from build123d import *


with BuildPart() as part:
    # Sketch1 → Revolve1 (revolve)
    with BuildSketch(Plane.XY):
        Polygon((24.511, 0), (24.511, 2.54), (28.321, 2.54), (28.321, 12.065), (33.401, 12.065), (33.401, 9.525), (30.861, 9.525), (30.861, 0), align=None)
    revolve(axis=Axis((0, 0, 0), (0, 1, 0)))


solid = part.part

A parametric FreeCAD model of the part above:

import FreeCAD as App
import Part
import Sketcher

V = App.Vector
Q = App.Units.Quantity


def add_polygon(sketch, points):
    """Adds a closed chain of lines whose ends are joined by coincident constraints."""
    first, n = sketch.GeometryCount, len(points)
    for a, b in zip(points, points[1:] + points[:1]):
        sketch.addGeometry(Part.LineSegment(App.Vector(*a, 0), App.Vector(*b, 0)), False)
    for i in range(n):
        sketch.addConstraint(Sketcher.Constraint("Coincident", first + i, 2, first + (i + 1) % n, 1))

doc = App.newDocument("Part")
body = doc.addObject("PartDesign::Body", "Body")

# Sketch on XY plane
sketch1 = body.newObject("Sketcher::SketchObject", "Sketch")
sketch1.AttachmentSupport = (doc.getObject("XY_Plane"), [""])
sketch1.MapMode = "FlatFace"
add_polygon(sketch1, [(24.5, 2.5), (24.5, 0), (30.9, 0), (30.9, 9.5), (33.4, 9.5), (33.4, 12.1), (28.3, 12.1), (28.3, 2.5)])  # lines 0-7
sketch1.addConstraint(Sketcher.Constraint("Vertical", 0))
sketch1.addConstraint(Sketcher.Constraint("Horizontal", 1))
sketch1.addConstraint(Sketcher.Constraint("Vertical", 2))
sketch1.addConstraint(Sketcher.Constraint("Horizontal", 3))
sketch1.addConstraint(Sketcher.Constraint("Vertical", 4))
sketch1.addConstraint(Sketcher.Constraint("Horizontal", 5))
sketch1.addConstraint(Sketcher.Constraint("Vertical", 6))
sketch1.addConstraint(Sketcher.Constraint("Horizontal", 7))
sketch1.addConstraint(Sketcher.Constraint("PointOnObject", 0, 2, -1))
sketch1.addConstraint(Sketcher.Constraint("Equal", 3, 0))
sketch1.addConstraint(Sketcher.Constraint("Equal", 0, 4))
sketch1.addConstraint(Sketcher.Constraint("DistanceX", 3, 1, 3, 2, Q("0.1 in")))
sketch1.addConstraint(Sketcher.Constraint("DistanceX", 5, 2, 5, 1, Q("0.2 in")))
sketch1.addConstraint(Sketcher.Constraint("DistanceX", 1, 1, 1, 2, Q("0.25 in")))
sketch1.addConstraint(Sketcher.Constraint("DistanceY", 2, 1, 2, 2, Q("0.375 in")))
sketch1.addConstraint(Sketcher.Constraint("DistanceX", -1, 1, 0, 2, Q("0.965 in")))
revolution = body.newObject("PartDesign::Revolution", "Revolution")
revolution.Profile = sketch1
revolution.ReferenceAxis = (sketch1, ["V_Axis"])
revolution.Angle = 360

doc.recompute()
